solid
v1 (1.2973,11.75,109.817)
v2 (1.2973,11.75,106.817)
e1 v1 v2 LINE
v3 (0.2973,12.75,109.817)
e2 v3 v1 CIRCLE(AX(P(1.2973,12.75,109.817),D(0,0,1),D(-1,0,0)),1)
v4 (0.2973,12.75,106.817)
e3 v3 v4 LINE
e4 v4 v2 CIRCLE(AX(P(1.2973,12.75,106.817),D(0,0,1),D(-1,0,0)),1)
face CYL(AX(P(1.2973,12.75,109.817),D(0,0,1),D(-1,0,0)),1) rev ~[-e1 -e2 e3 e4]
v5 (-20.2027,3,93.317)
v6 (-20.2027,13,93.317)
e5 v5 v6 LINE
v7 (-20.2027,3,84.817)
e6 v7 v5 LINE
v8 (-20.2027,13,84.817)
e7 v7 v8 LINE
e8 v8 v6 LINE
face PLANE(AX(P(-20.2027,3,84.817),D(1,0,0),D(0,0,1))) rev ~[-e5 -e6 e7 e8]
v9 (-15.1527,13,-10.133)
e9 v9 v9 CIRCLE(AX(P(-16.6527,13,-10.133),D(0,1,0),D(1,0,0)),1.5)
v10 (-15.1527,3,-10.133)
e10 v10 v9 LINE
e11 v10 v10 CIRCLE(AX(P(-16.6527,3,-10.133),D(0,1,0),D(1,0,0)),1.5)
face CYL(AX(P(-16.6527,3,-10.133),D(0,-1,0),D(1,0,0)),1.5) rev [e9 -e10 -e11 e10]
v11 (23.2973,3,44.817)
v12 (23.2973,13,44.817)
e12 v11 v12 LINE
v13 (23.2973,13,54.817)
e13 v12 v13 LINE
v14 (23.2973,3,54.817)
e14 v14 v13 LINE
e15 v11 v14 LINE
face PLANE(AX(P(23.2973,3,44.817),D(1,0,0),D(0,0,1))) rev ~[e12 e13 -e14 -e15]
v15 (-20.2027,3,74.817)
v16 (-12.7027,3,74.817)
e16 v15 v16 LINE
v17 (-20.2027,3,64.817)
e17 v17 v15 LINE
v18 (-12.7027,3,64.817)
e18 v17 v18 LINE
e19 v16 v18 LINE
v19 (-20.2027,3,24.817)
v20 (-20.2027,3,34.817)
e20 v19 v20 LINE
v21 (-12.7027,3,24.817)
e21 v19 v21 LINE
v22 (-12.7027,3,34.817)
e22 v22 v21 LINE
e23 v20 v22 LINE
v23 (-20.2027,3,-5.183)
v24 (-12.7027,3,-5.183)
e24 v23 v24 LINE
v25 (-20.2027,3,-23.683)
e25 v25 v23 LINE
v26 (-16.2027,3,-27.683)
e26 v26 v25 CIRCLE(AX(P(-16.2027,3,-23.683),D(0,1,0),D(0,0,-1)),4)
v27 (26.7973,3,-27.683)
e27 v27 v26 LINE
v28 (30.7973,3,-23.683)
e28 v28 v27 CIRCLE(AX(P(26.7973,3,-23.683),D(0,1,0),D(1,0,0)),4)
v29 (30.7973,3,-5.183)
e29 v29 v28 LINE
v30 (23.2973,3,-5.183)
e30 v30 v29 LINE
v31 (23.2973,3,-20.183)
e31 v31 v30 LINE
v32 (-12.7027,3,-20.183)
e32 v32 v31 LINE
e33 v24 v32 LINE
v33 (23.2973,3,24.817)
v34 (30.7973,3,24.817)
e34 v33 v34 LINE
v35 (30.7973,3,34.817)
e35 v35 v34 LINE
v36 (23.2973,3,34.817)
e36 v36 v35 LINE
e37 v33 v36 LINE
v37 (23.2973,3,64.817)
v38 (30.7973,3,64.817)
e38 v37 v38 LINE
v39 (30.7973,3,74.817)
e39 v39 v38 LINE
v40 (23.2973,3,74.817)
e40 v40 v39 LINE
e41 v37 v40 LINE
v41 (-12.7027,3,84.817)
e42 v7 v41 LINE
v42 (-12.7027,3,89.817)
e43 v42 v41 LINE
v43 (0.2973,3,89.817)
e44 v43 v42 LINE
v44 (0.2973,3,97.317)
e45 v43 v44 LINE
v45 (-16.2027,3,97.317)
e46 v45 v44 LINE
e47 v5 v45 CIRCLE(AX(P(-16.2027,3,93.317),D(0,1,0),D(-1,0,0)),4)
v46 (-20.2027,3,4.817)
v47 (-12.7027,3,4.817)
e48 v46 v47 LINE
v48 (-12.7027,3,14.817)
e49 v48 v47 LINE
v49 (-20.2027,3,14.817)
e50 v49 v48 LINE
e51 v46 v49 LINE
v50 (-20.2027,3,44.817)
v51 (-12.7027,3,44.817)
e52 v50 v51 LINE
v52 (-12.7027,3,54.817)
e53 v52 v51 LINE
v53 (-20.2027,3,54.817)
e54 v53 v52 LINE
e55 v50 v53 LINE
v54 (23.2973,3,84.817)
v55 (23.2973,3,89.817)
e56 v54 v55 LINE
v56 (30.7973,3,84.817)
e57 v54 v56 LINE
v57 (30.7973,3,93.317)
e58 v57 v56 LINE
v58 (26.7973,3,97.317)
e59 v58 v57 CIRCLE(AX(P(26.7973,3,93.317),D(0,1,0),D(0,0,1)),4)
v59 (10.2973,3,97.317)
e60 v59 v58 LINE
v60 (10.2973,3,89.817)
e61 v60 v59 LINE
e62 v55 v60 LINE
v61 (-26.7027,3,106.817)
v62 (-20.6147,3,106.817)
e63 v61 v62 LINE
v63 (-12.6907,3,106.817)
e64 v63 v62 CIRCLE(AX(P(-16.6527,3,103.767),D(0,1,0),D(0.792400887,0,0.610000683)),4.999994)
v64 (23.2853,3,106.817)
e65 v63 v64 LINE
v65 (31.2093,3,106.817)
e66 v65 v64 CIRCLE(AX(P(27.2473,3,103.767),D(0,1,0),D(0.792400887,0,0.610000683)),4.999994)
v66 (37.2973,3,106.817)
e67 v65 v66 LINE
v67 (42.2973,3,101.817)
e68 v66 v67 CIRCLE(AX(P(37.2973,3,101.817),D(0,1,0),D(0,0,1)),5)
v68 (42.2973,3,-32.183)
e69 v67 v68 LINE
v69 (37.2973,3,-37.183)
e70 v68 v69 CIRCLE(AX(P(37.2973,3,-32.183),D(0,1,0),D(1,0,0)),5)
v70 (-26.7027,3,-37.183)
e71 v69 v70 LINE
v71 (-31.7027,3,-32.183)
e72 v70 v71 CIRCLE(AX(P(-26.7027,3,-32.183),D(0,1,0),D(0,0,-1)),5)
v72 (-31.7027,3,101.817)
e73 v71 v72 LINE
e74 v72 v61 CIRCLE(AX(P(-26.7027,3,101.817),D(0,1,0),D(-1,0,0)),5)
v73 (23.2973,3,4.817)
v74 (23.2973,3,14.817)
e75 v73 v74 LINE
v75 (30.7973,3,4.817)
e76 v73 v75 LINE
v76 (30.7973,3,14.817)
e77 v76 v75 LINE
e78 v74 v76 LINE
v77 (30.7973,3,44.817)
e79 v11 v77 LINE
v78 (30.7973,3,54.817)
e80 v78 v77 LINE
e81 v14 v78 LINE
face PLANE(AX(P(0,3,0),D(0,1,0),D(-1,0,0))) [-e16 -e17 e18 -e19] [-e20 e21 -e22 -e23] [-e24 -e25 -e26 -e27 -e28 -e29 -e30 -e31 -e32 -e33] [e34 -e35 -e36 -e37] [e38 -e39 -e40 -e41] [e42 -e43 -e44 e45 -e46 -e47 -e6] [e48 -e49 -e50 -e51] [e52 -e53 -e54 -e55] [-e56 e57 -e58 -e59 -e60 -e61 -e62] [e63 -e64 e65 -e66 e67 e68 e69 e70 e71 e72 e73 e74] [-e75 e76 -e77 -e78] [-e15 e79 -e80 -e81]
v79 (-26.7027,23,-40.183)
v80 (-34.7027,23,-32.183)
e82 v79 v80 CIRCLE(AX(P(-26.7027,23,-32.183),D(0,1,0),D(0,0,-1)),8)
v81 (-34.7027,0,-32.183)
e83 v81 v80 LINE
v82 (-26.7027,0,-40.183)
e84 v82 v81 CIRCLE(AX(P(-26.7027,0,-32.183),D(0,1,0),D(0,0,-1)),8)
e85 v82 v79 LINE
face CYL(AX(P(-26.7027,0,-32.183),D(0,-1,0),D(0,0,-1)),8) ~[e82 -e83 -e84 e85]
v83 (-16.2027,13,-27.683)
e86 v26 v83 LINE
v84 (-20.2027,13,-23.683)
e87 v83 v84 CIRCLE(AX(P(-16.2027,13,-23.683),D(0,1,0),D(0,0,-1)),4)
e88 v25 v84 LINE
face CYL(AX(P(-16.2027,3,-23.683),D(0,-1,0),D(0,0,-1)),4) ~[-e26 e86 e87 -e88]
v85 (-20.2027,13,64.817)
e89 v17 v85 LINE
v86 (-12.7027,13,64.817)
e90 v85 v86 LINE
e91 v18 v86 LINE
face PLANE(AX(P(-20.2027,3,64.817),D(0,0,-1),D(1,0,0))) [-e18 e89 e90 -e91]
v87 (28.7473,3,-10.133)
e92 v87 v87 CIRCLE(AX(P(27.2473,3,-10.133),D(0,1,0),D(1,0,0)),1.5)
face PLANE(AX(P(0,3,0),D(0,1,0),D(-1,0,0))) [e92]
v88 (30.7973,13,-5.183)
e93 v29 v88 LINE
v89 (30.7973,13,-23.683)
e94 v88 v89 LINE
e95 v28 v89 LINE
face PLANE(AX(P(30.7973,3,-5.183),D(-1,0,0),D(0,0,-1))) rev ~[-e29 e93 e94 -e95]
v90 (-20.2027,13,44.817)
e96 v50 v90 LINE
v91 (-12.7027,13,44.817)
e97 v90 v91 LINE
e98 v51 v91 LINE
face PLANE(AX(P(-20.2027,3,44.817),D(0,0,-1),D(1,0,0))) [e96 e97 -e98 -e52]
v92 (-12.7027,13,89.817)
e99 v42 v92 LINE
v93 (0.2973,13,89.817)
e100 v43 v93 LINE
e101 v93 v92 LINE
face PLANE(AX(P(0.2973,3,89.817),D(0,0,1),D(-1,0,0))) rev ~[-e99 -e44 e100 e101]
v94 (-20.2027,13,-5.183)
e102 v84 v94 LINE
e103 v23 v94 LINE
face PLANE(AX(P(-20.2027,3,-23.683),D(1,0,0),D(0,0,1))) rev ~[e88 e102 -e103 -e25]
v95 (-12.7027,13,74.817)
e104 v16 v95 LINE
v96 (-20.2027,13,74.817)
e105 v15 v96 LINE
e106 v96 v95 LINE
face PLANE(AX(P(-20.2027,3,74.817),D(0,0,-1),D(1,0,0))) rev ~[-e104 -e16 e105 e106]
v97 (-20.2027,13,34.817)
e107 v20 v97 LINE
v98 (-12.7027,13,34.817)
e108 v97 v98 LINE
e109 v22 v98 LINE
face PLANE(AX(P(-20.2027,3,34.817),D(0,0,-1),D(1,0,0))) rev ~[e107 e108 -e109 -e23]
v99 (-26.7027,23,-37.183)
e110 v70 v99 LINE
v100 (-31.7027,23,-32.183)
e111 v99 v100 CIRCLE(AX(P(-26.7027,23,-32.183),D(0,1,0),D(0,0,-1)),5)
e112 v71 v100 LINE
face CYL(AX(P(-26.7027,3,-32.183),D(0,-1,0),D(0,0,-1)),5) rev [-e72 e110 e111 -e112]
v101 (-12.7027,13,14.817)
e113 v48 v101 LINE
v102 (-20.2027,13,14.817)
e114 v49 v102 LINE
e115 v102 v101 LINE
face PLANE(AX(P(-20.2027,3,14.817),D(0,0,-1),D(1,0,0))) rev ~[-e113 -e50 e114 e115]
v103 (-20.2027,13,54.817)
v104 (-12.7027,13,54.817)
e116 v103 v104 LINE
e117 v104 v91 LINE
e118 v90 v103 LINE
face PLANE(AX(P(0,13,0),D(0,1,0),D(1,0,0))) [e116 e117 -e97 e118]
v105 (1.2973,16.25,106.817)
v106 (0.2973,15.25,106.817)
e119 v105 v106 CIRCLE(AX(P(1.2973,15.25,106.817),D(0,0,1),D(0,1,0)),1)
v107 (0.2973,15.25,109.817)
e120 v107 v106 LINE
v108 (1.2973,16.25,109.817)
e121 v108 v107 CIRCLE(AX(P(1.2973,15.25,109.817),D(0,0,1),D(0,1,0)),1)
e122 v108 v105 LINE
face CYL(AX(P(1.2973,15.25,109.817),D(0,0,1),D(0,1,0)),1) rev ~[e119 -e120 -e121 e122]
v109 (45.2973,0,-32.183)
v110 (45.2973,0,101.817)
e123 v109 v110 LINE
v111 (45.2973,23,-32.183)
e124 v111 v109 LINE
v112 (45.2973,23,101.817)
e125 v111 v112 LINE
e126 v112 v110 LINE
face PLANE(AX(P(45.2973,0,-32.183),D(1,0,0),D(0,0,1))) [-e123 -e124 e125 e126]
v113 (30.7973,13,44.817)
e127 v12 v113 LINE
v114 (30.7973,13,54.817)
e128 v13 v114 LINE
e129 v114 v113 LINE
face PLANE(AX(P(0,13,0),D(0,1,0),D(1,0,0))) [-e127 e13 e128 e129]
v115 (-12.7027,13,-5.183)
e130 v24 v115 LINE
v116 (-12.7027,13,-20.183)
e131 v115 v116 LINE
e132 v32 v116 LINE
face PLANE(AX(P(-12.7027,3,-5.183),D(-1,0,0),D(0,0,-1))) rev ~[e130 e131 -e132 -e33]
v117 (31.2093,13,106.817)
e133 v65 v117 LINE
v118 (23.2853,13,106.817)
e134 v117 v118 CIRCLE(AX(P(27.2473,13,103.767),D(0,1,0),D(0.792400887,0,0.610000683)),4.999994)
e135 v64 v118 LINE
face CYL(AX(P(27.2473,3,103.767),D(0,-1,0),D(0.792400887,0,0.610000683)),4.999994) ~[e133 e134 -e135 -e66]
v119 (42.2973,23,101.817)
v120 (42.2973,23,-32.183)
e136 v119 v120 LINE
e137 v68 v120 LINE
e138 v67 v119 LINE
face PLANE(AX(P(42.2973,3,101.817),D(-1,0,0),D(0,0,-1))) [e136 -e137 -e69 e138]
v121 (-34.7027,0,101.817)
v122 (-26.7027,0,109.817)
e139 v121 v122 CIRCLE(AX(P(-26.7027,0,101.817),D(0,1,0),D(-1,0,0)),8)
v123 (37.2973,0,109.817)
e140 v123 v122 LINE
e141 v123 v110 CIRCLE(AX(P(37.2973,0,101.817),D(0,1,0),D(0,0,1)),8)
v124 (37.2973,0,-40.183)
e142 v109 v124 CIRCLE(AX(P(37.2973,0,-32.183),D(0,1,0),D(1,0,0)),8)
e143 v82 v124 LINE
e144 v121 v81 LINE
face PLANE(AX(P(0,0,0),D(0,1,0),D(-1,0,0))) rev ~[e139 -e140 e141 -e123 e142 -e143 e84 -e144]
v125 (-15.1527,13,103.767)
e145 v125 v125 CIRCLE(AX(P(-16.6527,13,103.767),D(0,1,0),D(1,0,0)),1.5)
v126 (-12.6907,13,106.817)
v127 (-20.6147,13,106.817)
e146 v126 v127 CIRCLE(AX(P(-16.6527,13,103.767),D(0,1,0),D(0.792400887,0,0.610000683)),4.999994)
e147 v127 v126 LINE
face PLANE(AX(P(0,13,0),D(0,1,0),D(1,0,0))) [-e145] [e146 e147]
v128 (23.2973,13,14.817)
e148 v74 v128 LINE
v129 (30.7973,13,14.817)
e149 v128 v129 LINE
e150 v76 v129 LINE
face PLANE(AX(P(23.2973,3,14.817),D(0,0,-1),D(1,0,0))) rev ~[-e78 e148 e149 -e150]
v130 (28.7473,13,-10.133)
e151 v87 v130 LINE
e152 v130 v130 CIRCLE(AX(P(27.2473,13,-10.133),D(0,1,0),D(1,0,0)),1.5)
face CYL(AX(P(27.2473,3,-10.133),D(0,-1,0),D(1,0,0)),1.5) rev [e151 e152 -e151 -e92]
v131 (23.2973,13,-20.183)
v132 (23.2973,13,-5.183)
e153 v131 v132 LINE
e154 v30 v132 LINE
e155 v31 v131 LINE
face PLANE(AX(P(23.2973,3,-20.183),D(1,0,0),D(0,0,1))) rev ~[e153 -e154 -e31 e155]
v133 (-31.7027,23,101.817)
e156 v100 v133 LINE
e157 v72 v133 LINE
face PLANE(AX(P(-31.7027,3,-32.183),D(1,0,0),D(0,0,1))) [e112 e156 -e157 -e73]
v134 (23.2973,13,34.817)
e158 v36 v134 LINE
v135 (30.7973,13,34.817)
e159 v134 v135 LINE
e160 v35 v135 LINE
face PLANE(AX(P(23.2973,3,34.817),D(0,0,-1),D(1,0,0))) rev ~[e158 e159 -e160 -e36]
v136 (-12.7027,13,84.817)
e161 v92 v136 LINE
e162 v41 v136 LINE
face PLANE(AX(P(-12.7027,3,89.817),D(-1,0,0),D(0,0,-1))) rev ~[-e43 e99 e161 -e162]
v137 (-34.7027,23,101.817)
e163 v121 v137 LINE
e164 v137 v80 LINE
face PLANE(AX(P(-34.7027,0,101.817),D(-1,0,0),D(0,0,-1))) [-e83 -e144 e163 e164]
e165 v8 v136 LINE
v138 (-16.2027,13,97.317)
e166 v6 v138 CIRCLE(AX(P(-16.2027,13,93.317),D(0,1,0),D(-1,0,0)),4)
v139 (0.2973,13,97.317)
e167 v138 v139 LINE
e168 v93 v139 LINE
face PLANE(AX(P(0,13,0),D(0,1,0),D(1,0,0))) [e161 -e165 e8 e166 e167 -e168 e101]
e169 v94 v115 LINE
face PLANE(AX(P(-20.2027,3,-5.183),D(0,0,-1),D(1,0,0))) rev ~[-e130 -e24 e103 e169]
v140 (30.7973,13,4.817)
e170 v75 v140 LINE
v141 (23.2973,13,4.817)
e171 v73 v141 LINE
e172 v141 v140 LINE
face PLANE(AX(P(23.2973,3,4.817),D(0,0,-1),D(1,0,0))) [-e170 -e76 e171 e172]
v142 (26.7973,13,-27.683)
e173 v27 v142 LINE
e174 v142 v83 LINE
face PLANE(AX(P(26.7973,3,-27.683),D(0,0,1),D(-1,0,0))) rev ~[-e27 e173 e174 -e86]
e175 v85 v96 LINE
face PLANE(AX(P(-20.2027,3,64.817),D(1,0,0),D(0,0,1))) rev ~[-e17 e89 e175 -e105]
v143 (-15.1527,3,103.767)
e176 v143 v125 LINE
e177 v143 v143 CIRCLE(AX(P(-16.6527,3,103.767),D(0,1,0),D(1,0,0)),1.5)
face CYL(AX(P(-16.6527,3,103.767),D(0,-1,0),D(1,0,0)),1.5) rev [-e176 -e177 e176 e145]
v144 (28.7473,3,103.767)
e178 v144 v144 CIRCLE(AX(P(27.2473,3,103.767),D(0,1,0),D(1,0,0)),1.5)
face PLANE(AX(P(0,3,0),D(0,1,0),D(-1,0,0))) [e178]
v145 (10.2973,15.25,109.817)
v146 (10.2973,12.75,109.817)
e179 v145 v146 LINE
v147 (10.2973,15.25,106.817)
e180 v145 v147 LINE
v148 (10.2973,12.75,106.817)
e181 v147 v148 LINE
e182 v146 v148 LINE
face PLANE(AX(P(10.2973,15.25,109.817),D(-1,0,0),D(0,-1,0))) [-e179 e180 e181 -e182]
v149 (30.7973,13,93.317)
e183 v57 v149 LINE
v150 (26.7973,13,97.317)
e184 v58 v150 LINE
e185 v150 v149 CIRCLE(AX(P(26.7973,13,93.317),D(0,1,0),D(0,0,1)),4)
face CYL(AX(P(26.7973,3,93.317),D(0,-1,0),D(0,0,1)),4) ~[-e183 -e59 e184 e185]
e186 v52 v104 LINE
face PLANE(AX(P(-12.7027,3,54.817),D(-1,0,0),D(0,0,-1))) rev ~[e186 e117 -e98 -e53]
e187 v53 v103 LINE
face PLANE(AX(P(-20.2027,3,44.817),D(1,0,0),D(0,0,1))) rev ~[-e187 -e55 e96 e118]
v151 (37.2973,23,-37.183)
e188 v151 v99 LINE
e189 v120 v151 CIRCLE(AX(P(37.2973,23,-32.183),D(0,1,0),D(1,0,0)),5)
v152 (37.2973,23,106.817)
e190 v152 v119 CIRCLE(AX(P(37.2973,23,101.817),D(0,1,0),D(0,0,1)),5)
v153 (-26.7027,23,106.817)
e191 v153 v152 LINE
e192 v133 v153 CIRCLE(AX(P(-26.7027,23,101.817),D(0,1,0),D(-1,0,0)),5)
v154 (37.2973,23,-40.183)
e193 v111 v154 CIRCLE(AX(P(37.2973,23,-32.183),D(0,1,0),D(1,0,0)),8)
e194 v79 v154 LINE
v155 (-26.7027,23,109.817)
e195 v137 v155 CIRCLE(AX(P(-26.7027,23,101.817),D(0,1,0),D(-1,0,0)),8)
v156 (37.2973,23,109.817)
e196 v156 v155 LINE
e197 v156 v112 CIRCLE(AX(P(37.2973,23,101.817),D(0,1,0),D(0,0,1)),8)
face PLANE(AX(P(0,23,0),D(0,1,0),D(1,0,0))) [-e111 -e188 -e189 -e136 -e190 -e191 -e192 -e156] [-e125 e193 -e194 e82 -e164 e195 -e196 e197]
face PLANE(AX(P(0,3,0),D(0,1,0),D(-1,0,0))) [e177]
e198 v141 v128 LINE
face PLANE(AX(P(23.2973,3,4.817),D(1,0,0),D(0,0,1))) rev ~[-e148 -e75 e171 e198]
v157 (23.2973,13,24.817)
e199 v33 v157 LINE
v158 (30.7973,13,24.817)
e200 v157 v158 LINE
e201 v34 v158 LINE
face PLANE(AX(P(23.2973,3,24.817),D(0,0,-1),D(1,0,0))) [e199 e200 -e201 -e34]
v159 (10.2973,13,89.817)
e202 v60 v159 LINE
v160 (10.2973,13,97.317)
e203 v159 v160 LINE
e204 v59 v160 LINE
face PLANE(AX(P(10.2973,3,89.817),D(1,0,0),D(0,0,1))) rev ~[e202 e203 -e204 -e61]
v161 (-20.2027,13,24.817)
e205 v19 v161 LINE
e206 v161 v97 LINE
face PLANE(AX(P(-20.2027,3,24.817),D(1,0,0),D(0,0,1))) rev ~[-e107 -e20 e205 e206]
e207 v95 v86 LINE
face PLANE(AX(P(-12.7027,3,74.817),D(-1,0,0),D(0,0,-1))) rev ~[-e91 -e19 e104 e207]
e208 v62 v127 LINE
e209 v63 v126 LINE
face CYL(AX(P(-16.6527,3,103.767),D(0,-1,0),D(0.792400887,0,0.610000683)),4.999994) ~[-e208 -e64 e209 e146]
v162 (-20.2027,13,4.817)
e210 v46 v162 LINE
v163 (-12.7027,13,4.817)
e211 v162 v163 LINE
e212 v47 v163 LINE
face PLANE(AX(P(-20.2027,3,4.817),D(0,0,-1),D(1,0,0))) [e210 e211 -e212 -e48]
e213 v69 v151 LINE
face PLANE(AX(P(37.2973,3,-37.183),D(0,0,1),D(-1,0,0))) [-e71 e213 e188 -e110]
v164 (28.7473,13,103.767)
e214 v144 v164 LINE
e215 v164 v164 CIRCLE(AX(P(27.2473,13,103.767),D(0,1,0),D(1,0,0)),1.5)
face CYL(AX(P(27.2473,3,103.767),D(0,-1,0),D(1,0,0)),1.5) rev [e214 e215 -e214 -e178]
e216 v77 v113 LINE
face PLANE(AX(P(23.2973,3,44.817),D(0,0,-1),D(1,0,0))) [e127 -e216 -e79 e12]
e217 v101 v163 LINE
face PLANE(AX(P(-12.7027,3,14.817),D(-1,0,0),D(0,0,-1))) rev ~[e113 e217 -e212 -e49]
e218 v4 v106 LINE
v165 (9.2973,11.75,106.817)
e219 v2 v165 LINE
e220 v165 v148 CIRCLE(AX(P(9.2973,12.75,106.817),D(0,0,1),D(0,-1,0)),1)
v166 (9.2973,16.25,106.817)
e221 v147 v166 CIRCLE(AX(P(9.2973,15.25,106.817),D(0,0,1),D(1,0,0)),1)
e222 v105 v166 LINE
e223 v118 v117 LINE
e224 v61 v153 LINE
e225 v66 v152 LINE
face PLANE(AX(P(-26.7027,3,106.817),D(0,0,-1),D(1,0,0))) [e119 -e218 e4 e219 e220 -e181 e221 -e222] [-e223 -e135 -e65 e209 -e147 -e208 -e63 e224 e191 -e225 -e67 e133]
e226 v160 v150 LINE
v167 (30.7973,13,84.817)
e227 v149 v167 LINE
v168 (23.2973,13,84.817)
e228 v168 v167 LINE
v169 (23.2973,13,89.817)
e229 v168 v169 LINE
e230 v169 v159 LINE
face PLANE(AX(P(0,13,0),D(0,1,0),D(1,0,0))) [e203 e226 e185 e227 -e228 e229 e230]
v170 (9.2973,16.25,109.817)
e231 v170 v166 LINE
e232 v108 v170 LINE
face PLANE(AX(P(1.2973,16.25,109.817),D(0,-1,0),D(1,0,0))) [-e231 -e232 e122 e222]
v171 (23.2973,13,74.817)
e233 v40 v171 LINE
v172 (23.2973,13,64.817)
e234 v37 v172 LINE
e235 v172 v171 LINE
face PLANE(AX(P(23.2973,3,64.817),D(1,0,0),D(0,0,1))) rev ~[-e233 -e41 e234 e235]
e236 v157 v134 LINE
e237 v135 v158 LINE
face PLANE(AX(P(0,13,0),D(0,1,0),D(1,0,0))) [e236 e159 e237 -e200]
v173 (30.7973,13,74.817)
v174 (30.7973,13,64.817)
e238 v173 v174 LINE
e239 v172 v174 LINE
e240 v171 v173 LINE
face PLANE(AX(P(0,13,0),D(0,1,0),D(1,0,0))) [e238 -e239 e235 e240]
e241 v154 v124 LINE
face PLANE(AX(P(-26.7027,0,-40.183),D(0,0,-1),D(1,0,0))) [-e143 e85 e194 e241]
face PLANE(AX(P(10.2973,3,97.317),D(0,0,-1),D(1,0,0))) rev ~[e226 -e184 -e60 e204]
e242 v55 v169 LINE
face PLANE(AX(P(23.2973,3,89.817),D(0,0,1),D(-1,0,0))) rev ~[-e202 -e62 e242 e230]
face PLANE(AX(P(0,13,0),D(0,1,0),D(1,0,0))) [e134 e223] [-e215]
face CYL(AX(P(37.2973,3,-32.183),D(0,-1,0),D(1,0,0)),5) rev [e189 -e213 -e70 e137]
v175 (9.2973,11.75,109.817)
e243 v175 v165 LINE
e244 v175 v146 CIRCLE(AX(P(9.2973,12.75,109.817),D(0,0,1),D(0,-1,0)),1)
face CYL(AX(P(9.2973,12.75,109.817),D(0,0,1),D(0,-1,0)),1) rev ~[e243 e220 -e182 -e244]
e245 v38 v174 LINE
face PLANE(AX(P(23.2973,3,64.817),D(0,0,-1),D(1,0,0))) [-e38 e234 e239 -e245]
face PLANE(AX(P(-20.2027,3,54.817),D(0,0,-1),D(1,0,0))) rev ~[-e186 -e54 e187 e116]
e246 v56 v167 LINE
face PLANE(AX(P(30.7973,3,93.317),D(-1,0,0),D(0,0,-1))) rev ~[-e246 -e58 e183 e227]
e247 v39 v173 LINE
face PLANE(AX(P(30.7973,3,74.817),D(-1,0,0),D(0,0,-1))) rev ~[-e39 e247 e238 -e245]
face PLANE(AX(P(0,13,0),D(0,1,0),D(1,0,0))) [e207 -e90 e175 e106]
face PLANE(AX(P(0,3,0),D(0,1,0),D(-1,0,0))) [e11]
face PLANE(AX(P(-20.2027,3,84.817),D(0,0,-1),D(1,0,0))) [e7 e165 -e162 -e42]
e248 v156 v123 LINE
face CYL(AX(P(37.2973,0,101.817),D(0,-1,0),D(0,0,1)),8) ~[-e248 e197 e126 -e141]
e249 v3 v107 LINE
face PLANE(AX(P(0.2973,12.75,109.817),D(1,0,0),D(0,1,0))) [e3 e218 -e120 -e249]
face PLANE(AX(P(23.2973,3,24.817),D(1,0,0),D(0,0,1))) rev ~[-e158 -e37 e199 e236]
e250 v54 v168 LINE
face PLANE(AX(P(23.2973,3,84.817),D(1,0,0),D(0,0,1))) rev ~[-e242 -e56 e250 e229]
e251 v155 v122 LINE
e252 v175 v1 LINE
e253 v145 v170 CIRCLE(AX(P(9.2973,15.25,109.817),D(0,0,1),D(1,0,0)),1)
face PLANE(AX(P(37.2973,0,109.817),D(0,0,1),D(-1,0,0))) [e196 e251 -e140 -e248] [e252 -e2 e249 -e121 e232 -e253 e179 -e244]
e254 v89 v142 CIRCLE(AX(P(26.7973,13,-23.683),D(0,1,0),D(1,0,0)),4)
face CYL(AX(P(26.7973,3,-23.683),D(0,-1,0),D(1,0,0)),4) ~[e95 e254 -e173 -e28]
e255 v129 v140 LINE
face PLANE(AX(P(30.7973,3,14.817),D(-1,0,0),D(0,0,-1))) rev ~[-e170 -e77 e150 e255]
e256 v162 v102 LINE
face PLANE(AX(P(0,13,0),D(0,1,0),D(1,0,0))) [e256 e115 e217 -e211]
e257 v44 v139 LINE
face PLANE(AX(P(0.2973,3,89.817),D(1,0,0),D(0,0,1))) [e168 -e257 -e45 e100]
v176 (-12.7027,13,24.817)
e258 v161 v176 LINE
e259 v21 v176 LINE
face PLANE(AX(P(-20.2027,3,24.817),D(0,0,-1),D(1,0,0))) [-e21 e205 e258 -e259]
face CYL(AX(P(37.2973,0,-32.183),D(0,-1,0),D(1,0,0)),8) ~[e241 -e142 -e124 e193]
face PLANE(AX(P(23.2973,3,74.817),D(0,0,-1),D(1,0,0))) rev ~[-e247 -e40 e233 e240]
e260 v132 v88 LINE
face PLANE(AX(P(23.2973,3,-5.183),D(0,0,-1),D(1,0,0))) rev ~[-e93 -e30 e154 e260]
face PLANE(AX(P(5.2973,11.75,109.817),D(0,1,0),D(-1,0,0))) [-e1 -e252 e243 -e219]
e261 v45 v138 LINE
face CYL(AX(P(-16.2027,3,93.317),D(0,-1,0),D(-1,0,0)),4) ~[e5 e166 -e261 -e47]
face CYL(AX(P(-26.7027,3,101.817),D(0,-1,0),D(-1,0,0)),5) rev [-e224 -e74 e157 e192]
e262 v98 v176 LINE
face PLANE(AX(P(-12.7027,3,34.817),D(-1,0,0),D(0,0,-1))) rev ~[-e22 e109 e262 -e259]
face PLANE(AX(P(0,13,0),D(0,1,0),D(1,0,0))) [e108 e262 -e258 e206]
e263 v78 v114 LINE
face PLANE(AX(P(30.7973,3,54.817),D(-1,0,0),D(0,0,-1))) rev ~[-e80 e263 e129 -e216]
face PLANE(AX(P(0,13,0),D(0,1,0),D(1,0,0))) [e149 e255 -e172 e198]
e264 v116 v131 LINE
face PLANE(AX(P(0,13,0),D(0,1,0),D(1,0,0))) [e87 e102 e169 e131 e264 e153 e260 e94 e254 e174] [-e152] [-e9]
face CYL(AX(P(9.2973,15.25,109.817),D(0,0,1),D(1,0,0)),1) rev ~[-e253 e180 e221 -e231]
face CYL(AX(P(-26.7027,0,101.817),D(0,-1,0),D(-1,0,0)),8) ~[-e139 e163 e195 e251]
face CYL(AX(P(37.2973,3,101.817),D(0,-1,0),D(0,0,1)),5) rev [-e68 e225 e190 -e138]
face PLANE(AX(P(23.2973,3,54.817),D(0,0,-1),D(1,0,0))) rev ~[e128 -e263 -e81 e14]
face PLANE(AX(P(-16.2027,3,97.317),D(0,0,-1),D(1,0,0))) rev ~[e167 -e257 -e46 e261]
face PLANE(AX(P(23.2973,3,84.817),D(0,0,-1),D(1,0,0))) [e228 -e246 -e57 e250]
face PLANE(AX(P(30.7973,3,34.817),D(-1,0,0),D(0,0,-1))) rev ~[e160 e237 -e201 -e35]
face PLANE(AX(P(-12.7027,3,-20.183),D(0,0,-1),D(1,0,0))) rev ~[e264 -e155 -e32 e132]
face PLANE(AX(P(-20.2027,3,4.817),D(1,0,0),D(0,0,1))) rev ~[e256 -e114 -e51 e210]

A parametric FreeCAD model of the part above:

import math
import FreeCAD as App
import Part
import Sketcher

V = App.Vector

doc = App.newDocument("Part")
body = doc.addObject("PartDesign::Body", "Body")

sketch1 = body.newObject("Sketcher::SketchObject", "Sketch")
sketch1.AttachmentSupport = (doc.getObject("XZ_Plane"), [""])
sketch1.MapMode = "FlatFace"
sketch1.addGeometry([
    Part.LineSegment(V(37, -40, 0), V(-27, -40, 0)),
    Part.ArcOfCircle(Part.Circle(V(-27, -32, 0), V(0, 0, 1), 8), math.radians(180), math.radians(270)),
    Part.LineSegment(V(-35, -32, 0), V(-35, 102, 0)),
    Part.ArcOfCircle(Part.Circle(V(-27, 102, 0), V(0, 0, 1), 8), math.radians(90), math.radians(180)),
    Part.LineSegment(V(-27, 110, 0), V(37, 110, 0)),
    Part.ArcOfCircle(Part.Circle(V(37, 102, 0), V(0, 0, 1), 8), math.radians(0), math.radians(90)),
    Part.LineSegment(V(45, 102, 0), V(45, -32, 0)),
    Part.ArcOfCircle(Part.Circle(V(37, -32, 0), V(0, 0, 1), 8), math.radians(-90), math.radians(0)),
], False)
sketch1.addConstraint([
    Sketcher.Constraint("Tangent", 0, 2, 1, 2),
    Sketcher.Constraint("Tangent", 1, 1, 2, 1),
    Sketcher.Constraint("Tangent", 2, 2, 3, 2),
    Sketcher.Constraint("Tangent", 3, 1, 4, 1),
    Sketcher.Constraint("Tangent", 4, 2, 5, 2),
    Sketcher.Constraint("Tangent", 5, 1, 6, 1),
    Sketcher.Constraint("Tangent", 6, 2, 7, 2),
    Sketcher.Constraint("Tangent", 7, 1, 0, 1),
    Sketcher.Constraint("Horizontal", 0),
    Sketcher.Constraint("Vertical", 2),
    Sketcher.Constraint("Horizontal", 4),
    Sketcher.Constraint("Vertical", 6),
    Sketcher.Constraint("Equal", 1, 3),
    Sketcher.Constraint("Equal", 3, 5),
    Sketcher.Constraint("Equal", 5, 7),
    Sketcher.Constraint("Radius", 1, 8.0),
    Sketcher.Constraint("DistanceX", 2, 2, 5, 1, 80.0),
    Sketcher.Constraint("DistanceY", 2, 1, 2, 2, 134.0),
    Sketcher.Constraint("DistanceY", 1, 3, -1, 1, 32.183),
    Sketcher.Constraint("DistanceX", 1, 3, -1, 1, 26.7027),
])
pad1 = body.newObject("PartDesign::Pad", "Pad")
pad1.Profile = sketch1
pad1.Length = 3
pad1.Reversed = True

sketch2 = body.newObject("Sketcher::SketchObject", "Sketch001")
sketch2.AttachmentSupport = (doc.getObject("XZ_Plane"), [""])
sketch2.MapMode = "FlatFace"
sketch2.AttachmentOffset = App.Placement(V(0, 0, -3), App.Rotation())
sketch2.addGeometry([
    Part.LineSegment(V(37, -40, 0), V(-27, -40, 0)),
    Part.ArcOfCircle(Part.Circle(V(-27, -32, 0), V(0, 0, 1), 8), math.radians(180), math.radians(270)),
    Part.LineSegment(V(-35, -32, 0), V(-35, 102, 0)),
    Part.ArcOfCircle(Part.Circle(V(-27, 102, 0), V(0, 0, 1), 8), math.radians(90), math.radians(180)),
    Part.LineSegment(V(-27, 110, 0), V(37, 110, 0)),
    Part.ArcOfCircle(Part.Circle(V(37, 102, 0), V(0, 0, 1), 8), math.radians(0), math.radians(90)),
    Part.LineSegment(V(45, 102, 0), V(45, -32, 0)),
    Part.ArcOfCircle(Part.Circle(V(37, -32, 0), V(0, 0, 1), 8), math.radians(-90), math.radians(0)),
    Part.LineSegment(V(-27, -37, 0), V(37, -37, 0)),
    Part.ArcOfCircle(Part.Circle(V(37, -32, 0), V(0, 0, 1), 5), math.radians(-90), math.radians(0)),
    Part.LineSegment(V(42, -32, 0), V(42, 102, 0)),
    Part.ArcOfCircle(Part.Circle(V(37, 102, 0), V(0, 0, 1), 5), math.radians(0), math.radians(90)),
    Part.LineSegment(V(37, 107, 0), V(-27, 107, 0)),
    Part.ArcOfCircle(Part.Circle(V(-27, 102, 0), V(0, 0, 1), 5), math.radians(90), math.radians(180)),
    Part.LineSegment(V(-32, 102, 0), V(-32, -32, 0)),
    Part.ArcOfCircle(Part.Circle(V(-27, -32, 0), V(0, 0, 1), 5), math.radians(180), math.radians(270)),
], False)
sketch2.addConstraint([
    Sketcher.Constraint("Tangent", 0, 2, 1, 2),
    Sketcher.Constraint("Tangent", 1, 1, 2, 1),
    Sketcher.Constraint("Tangent", 2, 2, 3, 2),
    Sketcher.Constraint("Tangent", 3, 1, 4, 1),
    Sketcher.Constraint("Tangent", 4, 2, 5, 2),
    Sketcher.Constraint("Tangent", 5, 1, 6, 1),
    Sketcher.Constraint("Tangent", 6, 2, 7, 2),
    Sketcher.Constraint("Tangent", 7, 1, 0, 1),
    Sketcher.Constraint("Tangent", 8, 2, 9, 1),
    Sketcher.Constraint("Tangent", 9, 2, 10, 1),
    Sketcher.Constraint("Tangent", 10, 2, 11, 1),
    Sketcher.Constraint("Tangent", 11, 2, 12, 1),
    Sketcher.Constraint("Tangent", 12, 2, 13, 1),
    Sketcher.Constraint("Tangent", 13, 2, 14, 1),
    Sketcher.Constraint("Tangent", 14, 2, 15, 1),
    Sketcher.Constraint("Tangent", 15, 2, 8, 1),
    Sketcher.Constraint("Horizontal", 0),
    Sketcher.Constraint("Vertical", 2),
    Sketcher.Constraint("Horizontal", 4),
    Sketcher.Constraint("Vertical", 6),
    Sketcher.Constraint("Horizontal", 8),
    Sketcher.Constraint("Vertical", 10),
    Sketcher.Constraint("Horizontal", 12),
    Sketcher.Constraint("Vertical", 14),
    Sketcher.Constraint("Coincident", 9, 3, 7, 3),
    Sketcher.Constraint("Coincident", 11, 3, 5, 3),
    Sketcher.Constraint("Coincident", 13, 3, 3, 3),
    Sketcher.Constraint("Equal", 1, 3),
    Sketcher.Constraint("Equal", 3, 5),
    Sketcher.Constraint("Equal", 5, 7),
    Sketcher.Constraint("Equal", 13, 15),
    Sketcher.Constraint("Radius", 1, 8.0),
    Sketcher.Constraint("Radius", 9, 5.0),
    Sketcher.Constraint("DistanceX", 0, 2, 0, 1, 64.0),
    Sketcher.Constraint("DistanceY", 2, 1, 2, 2, 134.0),
    Sketcher.Constraint("DistanceY", 1, 3, -1, 1, 32.183),
    Sketcher.Constraint("DistanceX", 1, 3, -1, 1, 26.7027),
])
pad2 = body.newObject("PartDesign::Pad", "Pad001")
pad2.Profile = sketch2
pad2.Length = 20
pad2.Reversed = True

sketch3 = body.newObject("Sketcher::SketchObject", "Sketch002")
sketch3.AttachmentSupport = (doc.getObject("XY_Plane"), [""])
sketch3.MapMode = "FlatFace"
sketch3.AttachmentOffset = App.Placement(V(0, 0, 109.817), App.Rotation())
sketch3.addGeometry([
    Part.LineSegment(V(9.3, 16.2, 0), V(1.3, 16.2, 0)),
    Part.ArcOfCircle(Part.Circle(V(1.3, 15.2, 0), V(0, 0, 1), 1), math.radians(90), math.radians(180)),
    Part.LineSegment(V(0.3, 15.2, 0), V(0.3, 12.8, 0)),
    Part.ArcOfCircle(Part.Circle(V(1.3, 12.8, 0), V(0, 0, 1), 1), math.radians(180), math.radians(270)),
    Part.LineSegment(V(1.3, 11.8, 0), V(9.3, 11.8, 0)),
    Part.ArcOfCircle(Part.Circle(V(9.3, 12.8, 0), V(0, 0, 1), 1), math.radians(-90), math.radians(0)),
    Part.LineSegment(V(10.3, 12.8, 0), V(10.3, 15.2, 0)),
    Part.ArcOfCircle(Part.Circle(V(9.3, 15.2, 0), V(0, 0, 1), 1), math.radians(0), math.radians(90)),
], False)
sketch3.addConstraint([
    Sketcher.Constraint("Tangent", 0, 2, 1, 1),
    Sketcher.Constraint("Tangent", 1, 2, 2, 1),
    Sketcher.Constraint("Tangent", 2, 2, 3, 1),
    Sketcher.Constraint("Tangent", 3, 2, 4, 1),
    Sketcher.Constraint("Tangent", 4, 2, 5, 1),
    Sketcher.Constraint("Tangent", 5, 2, 6, 1),
    Sketcher.Constraint("Tangent", 6, 2, 7, 1),
    Sketcher.Constraint("Tangent", 7, 2, 0, 1),
    Sketcher.Constraint("Horizontal", 0),
    Sketcher.Constraint("Vertical", 2),
    Sketcher.Constraint("Horizontal", 4),
    Sketcher.Constraint("Vertical", 6),
    Sketcher.Constraint("Equal", 1, 3),
    Sketcher.Constraint("Equal", 3, 5),
    Sketcher.Constraint("Equal", 5, 7),
    Sketcher.Constraint("Radius", 1, 1.0),
    Sketcher.Constraint("DistanceY", 3, 2, 0, 2, 4.5),
    Sketcher.Constraint("DistanceX", 0, 2, 0, 1, 8.0),
    Sketcher.Constraint("DistanceY", -1, 1, 1, 3, 15.25),
    Sketcher.Constraint("DistanceX", -1, 1, 1, 3, 1.2973),
])
pocket1 = body.newObject("PartDesign::Pocket", "Pocket")
pocket1.Profile = sketch3
pocket1.Length = 3

sketch4 = body.newObject("Sketcher::SketchObject", "Sketch003")
sketch4.AttachmentSupport = (doc.getObject("XZ_Plane"), [""])
sketch4.MapMode = "FlatFace"
sketch4.AttachmentOffset = App.Placement(V(0, 0, -3), App.Rotation())
sketch4.addGeometry([
    Part.LineSegment(V(-12.7, -5.2, 0), V(-12.7, -20.2, 0)),
    Part.LineSegment(V(-12.7, -20.2, 0), V(23.3, -20.2, 0)),
    Part.LineSegment(V(23.3, -20.2, 0), V(23.3, -5.2, 0)),
    Part.LineSegment(V(23.3, -5.2, 0), V(30.8, -5.2, 0)),
    Part.LineSegment(V(30.8, -5.2, 0), V(30.8, -23.7, 0)),
    Part.ArcOfCircle(Part.Circle(V(26.8, -23.7, 0), V(0, 0, 1), 4), math.radians(-90), math.radians(0)),
    Part.LineSegment(V(26.8, -27.7, 0), V(-16.2, -27.7, 0)),
    Part.ArcOfCircle(Part.Circle(V(-16.2, -23.7, 0), V(0, 0, 1), 4), math.radians(180), math.radians(270)),
    Part.LineSegment(V(-20.2, -23.7, 0), V(-20.2, -5.2, 0)),
    Part.LineSegment(V(-20.2, -5.2, 0), V(-12.7, -5.2, 0)),
    Part.Circle(V(-16.7, -10.1, 0), V(0, 0, 1), 1.5),
    Part.Circle(V(27.2, -10.1, 0), V(0, 0, 1), 1.5),
    Part.LineSegment(V(10.3, 97.3, 0), V(26.8, 97.3, 0)),
    Part.ArcOfCircle(Part.Circle(V(26.8, 93.3, 0), V(0, 0, 1), 4), math.radians(0), math.radians(90)),
    Part.LineSegment(V(30.8, 93.3, 0), V(30.8, 84.8, 0)),
    Part.LineSegment(V(30.8, 84.8, 0), V(23.3, 84.8, 0)),
    Part.LineSegment(V(23.3, 84.8, 0), V(23.3, 89.8, 0)),
    Part.LineSegment(V(23.3, 89.8, 0), V(10.3, 89.8, 0)),
    Part.LineSegment(V(10.3, 89.8, 0), V(10.3, 97.3, 0)),
    Part.LineSegment(V(-20.2, 84.8, 0), V(-20.2, 93.3, 0)),
    Part.ArcOfCircle(Part.Circle(V(-16.2, 93.3, 0), V(0, 0, 1), 4), math.radians(90), math.radians(180)),
    Part.LineSegment(V(-16.2, 97.3, 0), V(0.3, 97.3, 0)),
    Part.LineSegment(V(0.3, 97.3, 0), V(0.3, 89.8, 0)),
    Part.LineSegment(V(0.3, 89.8, 0), V(-12.7, 89.8, 0)),
    Part.LineSegment(V(-12.7, 89.8, 0), V(-12.7, 84.8, 0)),
    Part.LineSegment(V(-12.7, 84.8, 0), V(-20.2, 84.8, 0)),
    Part.LineSegment(V(-20.6, 106.8, 0), V(-12.7, 106.8, 0)),
    Part.ArcOfCircle(Part.Circle(V(-16.7, 103.8, 0), V(0, 0, 1), 5), math.radians(142), math.radians(398)),
    Part.Circle(V(-16.7, 103.8, 0), V(0, 0, 1), 1.5),
    Part.LineSegment(V(23.3, 106.8, 0), V(31.2, 106.8, 0)),
    Part.ArcOfCircle(Part.Circle(V(27.2, 103.8, 0), V(0, 0, 1), 5), math.radians(142), math.radians(398)),
    Part.Circle(V(27.2, 103.8, 0), V(0, 0, 1), 1.5),
    Part.LineSegment(V(-12.7, 4.8, 0), V(-20.2, 4.8, 0)),
    Part.LineSegment(V(-20.2, 4.8, 0), V(-20.2, 14.8, 0)),
    Part.LineSegment(V(-20.2, 14.8, 0), V(-12.7, 14.8, 0)),
    Part.LineSegment(V(-12.7, 14.8, 0), V(-12.7, 4.8, 0)),
    Part.LineSegment(V(30.8, 4.8, 0), V(23.3, 4.8, 0)),
    Part.LineSegment(V(23.3, 4.8, 0), V(23.3, 14.8, 0)),
    Part.LineSegment(V(23.3, 14.8, 0), V(30.8, 14.8, 0)),
    Part.LineSegment(V(30.8, 14.8, 0), V(30.8, 4.8, 0)),
    Part.LineSegment(V(-12.7, 24.8, 0), V(-20.2, 24.8, 0)),
    Part.LineSegment(V(-20.2, 24.8, 0), V(-20.2, 34.8, 0)),
    Part.LineSegment(V(-20.2, 34.8, 0), V(-12.7, 34.8, 0)),
    Part.LineSegment(V(-12.7, 34.8, 0), V(-12.7, 24.8, 0)),
    Part.LineSegment(V(30.8, 24.8, 0), V(23.3, 24.8, 0)),
    Part.LineSegment(V(23.3, 24.8, 0), V(23.3, 34.8, 0)),
    Part.LineSegment(V(23.3, 34.8, 0), V(30.8, 34.8, 0)),
    Part.LineSegment(V(30.8, 34.8, 0), V(30.8, 24.8, 0)),
    Part.LineSegment(V(-12.7, 44.8, 0), V(-20.2, 44.8, 0)),
    Part.LineSegment(V(-20.2, 44.8, 0), V(-20.2, 54.8, 0)),
    Part.LineSegment(V(-20.2, 54.8, 0), V(-12.7, 54.8, 0)),
    Part.LineSegment(V(-12.7, 54.8, 0), V(-12.7, 44.8, 0)),
    Part.LineSegment(V(30.8, 44.8, 0), V(23.3, 44.8, 0)),
    Part.LineSegment(V(23.3, 44.8, 0), V(23.3, 54.8, 0)),
    Part.LineSegment(V(23.3, 54.8, 0), V(30.8, 54.8, 0)),
    Part.LineSegment(V(30.8, 54.8, 0), V(30.8, 44.8, 0)),
    Part.LineSegment(V(-12.7, 64.8, 0), V(-20.2, 64.8, 0)),
    Part.LineSegment(V(-20.2, 64.8, 0), V(-20.2, 74.8, 0)),
    Part.LineSegment(V(-20.2, 74.8, 0), V(-12.7, 74.8, 0)),
    Part.LineSegment(V(-12.7, 74.8, 0), V(-12.7, 64.8, 0)),
    Part.LineSegment(V(30.8, 64.8, 0), V(23.3, 64.8, 0)),
    Part.LineSegment(V(23.3, 64.8, 0), V(23.3, 74.8, 0)),
    Part.LineSegment(V(23.3, 74.8, 0), V(30.8, 74.8, 0)),
    Part.LineSegment(V(30.8, 74.8, 0), V(30.8, 64.8, 0)),
], False)
sketch4.addConstraint([
    Sketcher.Constraint("Coincident", 0, 2, 1, 1),
    Sketcher.Constraint("Coincident", 1, 2, 2, 1),
    Sketcher.Constraint("Coincident", 2, 2, 3, 1),
    Sketcher.Constraint("Coincident", 3, 2, 4, 1),
    Sketcher.Constraint("Tangent", 4, 2, 5, 2),
    Sketcher.Constraint("Tangent", 5, 1, 6, 1),
    Sketcher.Constraint("Tangent", 6, 2, 7, 2),
    Sketcher.Constraint("Tangent", 7, 1, 8, 1),
    Sketcher.Constraint("Coincident", 8, 2, 9, 1),
    Sketcher.Constraint("Coincident", 9, 2, 0, 1),
    Sketcher.Constraint("Tangent", 12, 2, 13, 2),
    Sketcher.Constraint("Tangent", 13, 1, 14, 1),
    Sketcher.Constraint("Coincident", 14, 2, 15, 1),
    Sketcher.Constraint("Coincident", 15, 2, 16, 1),
    Sketcher.Constraint("Coincident", 16, 2, 17, 1),
    Sketcher.Constraint("Coincident", 17, 2, 18, 1),
    Sketcher.Constraint("Coincident", 18, 2, 12, 1),
    Sketcher.Constraint("Tangent", 19, 2, 20, 2),
    Sketcher.Constraint("Tangent", 20, 1, 21, 1),
    Sketcher.Constraint("Coincident", 21, 2, 22, 1),
    Sketcher.Constraint("Coincident", 22, 2, 23, 1),
    Sketcher.Constraint("Coincident", 23, 2, 24, 1),
    Sketcher.Constraint("Coincident", 24, 2, 25, 1),
    Sketcher.Constraint("Coincident", 25, 2, 19, 1),
    Sketcher.Constraint("Coincident", 26, 1, 27, 1),
    Sketcher.Constraint("Coincident", 27, 2, 26, 2),
    Sketcher.Constraint("Coincident", 29, 1, 30, 1),
    Sketcher.Constraint("Coincident", 30, 2, 29, 2),
    Sketcher.Constraint("Coincident", 32, 2, 33, 1),
    Sketcher.Constraint("Coincident", 33, 2, 34, 1),
    Sketcher.Constraint("Coincident", 34, 2, 35, 1),
    Sketcher.Constraint("Coincident", 35, 2, 32, 1),
    Sketcher.Constraint("Coincident", 36, 2, 37, 1),
    Sketcher.Constraint("Coincident", 37, 2, 38, 1),
    Sketcher.Constraint("Coincident", 38, 2, 39, 1),
    Sketcher.Constraint("Coincident", 39, 2, 36, 1),
    Sketcher.Constraint("Coincident", 40, 2, 41, 1),
    Sketcher.Constraint("Coincident", 41, 2, 42, 1),
    Sketcher.Constraint("Coincident", 42, 2, 43, 1),
    Sketcher.Constraint("Coincident", 43, 2, 40, 1),
    Sketcher.Constraint("Coincident", 44, 2, 45, 1),
    Sketcher.Constraint("Coincident", 45, 2, 46, 1),
    Sketcher.Constraint("Coincident", 46, 2, 47, 1),
    Sketcher.Constraint("Coincident", 47, 2, 44, 1),
    Sketcher.Constraint("Coincident", 48, 2, 49, 1),
    Sketcher.Constraint("Coincident", 49, 2, 50, 1),
    Sketcher.Constraint("Coincident", 50, 2, 51, 1),
    Sketcher.Constraint("Coincident", 51, 2, 48, 1),
    Sketcher.Constraint("Coincident", 52, 2, 53, 1),
    Sketcher.Constraint("Coincident", 53, 2, 54, 1),
    Sketcher.Constraint("Coincident", 54, 2, 55, 1),
    Sketcher.Constraint("Coincident", 55, 2, 52, 1),
    Sketcher.Constraint("Coincident", 56, 2, 57, 1),
    Sketcher.Constraint("Coincident", 57, 2, 58, 1),
    Sketcher.Constraint("Coincident", 58, 2, 59, 1),
    Sketcher.Constraint("Coincident", 59, 2, 56, 1),
    Sketcher.Constraint("Coincident", 60, 2, 61, 1),
    Sketcher.Constraint("Coincident", 61, 2, 62, 1),
    Sketcher.Constraint("Coincident", 62, 2, 63, 1),
    Sketcher.Constraint("Coincident", 63, 2, 60, 1),
    Sketcher.Constraint("Vertical", 0),
    Sketcher.Constraint("Horizontal", 1),
    Sketcher.Constraint("Vertical", 2),
    Sketcher.Constraint("Horizontal", 3),
    Sketcher.Constraint("Vertical", 4),
    Sketcher.Constraint("Horizontal", 6),
    Sketcher.Constraint("Vertical", 8),
    Sketcher.Constraint("Horizontal", 9),
    Sketcher.Constraint("Horizontal", 12),
    Sketcher.Constraint("Vertical", 14),
    Sketcher.Constraint("Horizontal", 15),
    Sketcher.Constraint("Vertical", 16),
    Sketcher.Constraint("Horizontal", 17),
    Sketcher.Constraint("Vertical", 18),
    Sketcher.Constraint("Vertical", 19),
    Sketcher.Constraint("Horizontal", 21),
    Sketcher.Constraint("Vertical", 22),
    Sketcher.Constraint("Horizontal", 23),
    Sketcher.Constraint("Vertical", 24),
    Sketcher.Constraint("Horizontal", 25),
    Sketcher.Constraint("Horizontal", 26),
    Sketcher.Constraint("Horizontal", 29),
    Sketcher.Constraint("Horizontal", 32),
    Sketcher.Constraint("Vertical", 33),
    Sketcher.Constraint("Horizontal", 34),
    Sketcher.Constraint("Vertical", 35),
    Sketcher.Constraint("Horizontal", 36),
    Sketcher.Constraint("Vertical", 37),
    Sketcher.Constraint("Horizontal", 38),
    Sketcher.Constraint("Vertical", 39),
    Sketcher.Constraint("Horizontal", 40),
    Sketcher.Constraint("Vertical", 41),
    Sketcher.Constraint("Horizontal", 42),
    Sketcher.Constraint("Vertical", 43),
    Sketcher.Constraint("Horizontal", 44),
    Sketcher.Constraint("Vertical", 45),
    Sketcher.Constraint("Horizontal", 46),
    Sketcher.Constraint("Vertical", 47),
    Sketcher.Constraint("Horizontal", 48),
    Sketcher.Constraint("Vertical", 49),
    Sketcher.Constraint("Horizontal", 50),
    Sketcher.Constraint("Vertical", 51),
    Sketcher.Constraint("Horizontal", 52),
    Sketcher.Constraint("Vertical", 53),
    Sketcher.Constraint("Horizontal", 54),
    Sketcher.Constraint("Vertical", 55),
    Sketcher.Constraint("Horizontal", 56),
    Sketcher.Constraint("Vertical", 57),
    Sketcher.Constraint("Horizontal", 58),
    Sketcher.Constraint("Vertical", 59),
    Sketcher.Constraint("Horizontal", 60),
    Sketcher.Constraint("Vertical", 61),
    Sketcher.Constraint("Horizontal", 62),
    Sketcher.Constraint("Vertical", 63),
    Sketcher.Constraint("Coincident", 28, 3, 27, 3),
    Sketcher.Constraint("Coincident", 31, 3, 30, 3),
    Sketcher.Constraint("Equal", 5, 7),
    Sketcher.Constraint("Equal", 10, 11),
    Sketcher.Constraint("Equal", 7, 13),
    Sketcher.Constraint("Equal", 13, 20),
    Sketcher.Constraint("Equal", 11, 28),
    Sketcher.Constraint("Equal", 27, 30),
    Sketcher.Constraint("Equal", 28, 31),
    Sketcher.Constraint("Horizontal", 10, 3, 11, 3),
    Sketcher.Constraint("Horizontal", 13, 3, 20, 3),
    Sketcher.Constraint("Horizontal", 28, 3, 30, 3),
    Sketcher.Constraint("Horizontal", 3, 2, 8, 2),
    Sketcher.Constraint("Horizontal", 17, 2, 22, 2),
    Sketcher.Constraint("Horizontal", 15, 2, 24, 2),
    Sketcher.Constraint("Horizontal", 27, 2, 29, 1),
    Sketcher.Constraint("Horizontal", 35, 2, 36, 2),
    Sketcher.Constraint("Horizontal", 34, 2, 37, 2),
    Sketcher.Constraint("Horizontal", 43, 2, 44, 2),
    Sketcher.Constraint("Horizontal", 42, 2, 45, 2),
    Sketcher.Constraint("Horizontal", 51, 2, 52, 2),
    Sketcher.Constraint("Horizontal", 50, 2, 53, 2),
    Sketcher.Constraint("Horizontal", 59, 2, 60, 2),
    Sketcher.Constraint("Horizontal", 58, 2, 61, 2),
    Sketcher.Constraint("Vertical", 5, 3, 13, 3),
    Sketcher.Constraint("Vertical", 7, 3, 20, 3),
    Sketcher.Constraint("Vertical", 10, 3, 27, 3),
    Sketcher.Constraint("Vertical", 11, 3, 30, 3),
    Sketcher.Constraint("Vertical", 2, 2, 15, 2),
    Sketcher.Constraint("Vertical", 9, 2, 23, 2),
    Sketcher.Constraint("Vertical", 25, 2, 32, 2),
    Sketcher.Constraint("Vertical", 24, 2, 34, 2),
    Sketcher.Constraint("Vertical", 16, 2, 36, 2),
    Sketcher.Constraint("Vertical", 14, 2, 38, 2),
    Sketcher.Constraint("Vertical", 33, 2, 40, 2),
    Sketcher.Constraint("Vertical", 35, 2, 42, 2),
    Sketcher.Constraint("Vertical", 37, 2, 44, 2),
    Sketcher.Constraint("Vertical", 39, 2, 46, 2),
    Sketcher.Constraint("Vertical", 41, 2, 48, 2),
    Sketcher.Constraint("Vertical", 43, 2, 50, 2),
    Sketcher.Constraint("Vertical", 45, 2, 52, 2),
    Sketcher.Constraint("Vertical", 47, 2, 54, 2),
    Sketcher.Constraint("Vertical", 49, 2, 56, 2),
    Sketcher.Constraint("Vertical", 51, 2, 58, 2),
    Sketcher.Constraint("Vertical", 53, 2, 60, 2),
    Sketcher.Constraint("Vertical", 55, 2, 62, 2),
    Sketcher.Constraint("Equal", 3, 9),
    Sketcher.Constraint("Equal", 12, 21),
    Sketcher.Constraint("Equal", 62, 18),
    Sketcher.Constraint("Equal", 39, 41),
    Sketcher.Constraint("Equal", 47, 49),
    Sketcher.Constraint("Equal", 55, 57),
    Sketcher.Constraint("Diameter", 10, 3.0),
    Sketcher.Constraint("Radius", 5, 4.0),
    Sketcher.Constraint("DistanceX", 1, 1, 1, 2, 36.0),
    Sketcher.Constraint("DistanceX", 3, 1, 3, 2, 7.5),
    Sketcher.Constraint("Radius", 27, 5.0),
    Sketcher.Constraint("DistanceX", 17, 2, 17, 1, 13.0),
    Sketcher.Constraint("DistanceY", 0, 2, 0, 1, 15.0),
    Sketcher.Constraint("DistanceY", 16, 1, 16, 2, 5.0),
    Sketcher.Constraint("DistanceY", 33, 1, 33, 2, 10.0),
    Sketcher.Constraint("DistanceY", 4, 2, 4, 1, 18.5),
    Sketcher.Constraint("DistanceX", 26, 1, 26, 2, 7.924),
    Sketcher.Constraint("DistanceY", 5, 3, -1, 1, 23.683),
    Sketcher.Constraint("DistanceY", 10, 3, -1, 1, 10.133),
    Sketcher.Constraint("DistanceY", -1, 1, 13, 3, 93.317),
    Sketcher.Constraint("DistanceY", -1, 1, 27, 3, 103.767),
    Sketcher.Constraint("DistanceY", -1, 1, 32, 2, 4.817),
    Sketcher.Constraint("DistanceY", -1, 1, 40, 2, 24.817),
    Sketcher.Constraint("DistanceY", -1, 1, 48, 2, 44.817),
    Sketcher.Constraint("DistanceY", -1, 1, 56, 2, 64.817),
    Sketcher.Constraint("DistanceX", -1, 1, 5, 3, 26.7973),
    Sketcher.Constraint("DistanceX", 10, 3, -1, 1, 16.6527),
    Sketcher.Constraint("DistanceX", -1, 1, 11, 3, 27.2473),
])
pad3 = body.newObject("PartDesign::Pad", "Pad002")
pad3.Profile = sketch4
pad3.Length = 10
pad3.Reversed = True

doc.recompute()
